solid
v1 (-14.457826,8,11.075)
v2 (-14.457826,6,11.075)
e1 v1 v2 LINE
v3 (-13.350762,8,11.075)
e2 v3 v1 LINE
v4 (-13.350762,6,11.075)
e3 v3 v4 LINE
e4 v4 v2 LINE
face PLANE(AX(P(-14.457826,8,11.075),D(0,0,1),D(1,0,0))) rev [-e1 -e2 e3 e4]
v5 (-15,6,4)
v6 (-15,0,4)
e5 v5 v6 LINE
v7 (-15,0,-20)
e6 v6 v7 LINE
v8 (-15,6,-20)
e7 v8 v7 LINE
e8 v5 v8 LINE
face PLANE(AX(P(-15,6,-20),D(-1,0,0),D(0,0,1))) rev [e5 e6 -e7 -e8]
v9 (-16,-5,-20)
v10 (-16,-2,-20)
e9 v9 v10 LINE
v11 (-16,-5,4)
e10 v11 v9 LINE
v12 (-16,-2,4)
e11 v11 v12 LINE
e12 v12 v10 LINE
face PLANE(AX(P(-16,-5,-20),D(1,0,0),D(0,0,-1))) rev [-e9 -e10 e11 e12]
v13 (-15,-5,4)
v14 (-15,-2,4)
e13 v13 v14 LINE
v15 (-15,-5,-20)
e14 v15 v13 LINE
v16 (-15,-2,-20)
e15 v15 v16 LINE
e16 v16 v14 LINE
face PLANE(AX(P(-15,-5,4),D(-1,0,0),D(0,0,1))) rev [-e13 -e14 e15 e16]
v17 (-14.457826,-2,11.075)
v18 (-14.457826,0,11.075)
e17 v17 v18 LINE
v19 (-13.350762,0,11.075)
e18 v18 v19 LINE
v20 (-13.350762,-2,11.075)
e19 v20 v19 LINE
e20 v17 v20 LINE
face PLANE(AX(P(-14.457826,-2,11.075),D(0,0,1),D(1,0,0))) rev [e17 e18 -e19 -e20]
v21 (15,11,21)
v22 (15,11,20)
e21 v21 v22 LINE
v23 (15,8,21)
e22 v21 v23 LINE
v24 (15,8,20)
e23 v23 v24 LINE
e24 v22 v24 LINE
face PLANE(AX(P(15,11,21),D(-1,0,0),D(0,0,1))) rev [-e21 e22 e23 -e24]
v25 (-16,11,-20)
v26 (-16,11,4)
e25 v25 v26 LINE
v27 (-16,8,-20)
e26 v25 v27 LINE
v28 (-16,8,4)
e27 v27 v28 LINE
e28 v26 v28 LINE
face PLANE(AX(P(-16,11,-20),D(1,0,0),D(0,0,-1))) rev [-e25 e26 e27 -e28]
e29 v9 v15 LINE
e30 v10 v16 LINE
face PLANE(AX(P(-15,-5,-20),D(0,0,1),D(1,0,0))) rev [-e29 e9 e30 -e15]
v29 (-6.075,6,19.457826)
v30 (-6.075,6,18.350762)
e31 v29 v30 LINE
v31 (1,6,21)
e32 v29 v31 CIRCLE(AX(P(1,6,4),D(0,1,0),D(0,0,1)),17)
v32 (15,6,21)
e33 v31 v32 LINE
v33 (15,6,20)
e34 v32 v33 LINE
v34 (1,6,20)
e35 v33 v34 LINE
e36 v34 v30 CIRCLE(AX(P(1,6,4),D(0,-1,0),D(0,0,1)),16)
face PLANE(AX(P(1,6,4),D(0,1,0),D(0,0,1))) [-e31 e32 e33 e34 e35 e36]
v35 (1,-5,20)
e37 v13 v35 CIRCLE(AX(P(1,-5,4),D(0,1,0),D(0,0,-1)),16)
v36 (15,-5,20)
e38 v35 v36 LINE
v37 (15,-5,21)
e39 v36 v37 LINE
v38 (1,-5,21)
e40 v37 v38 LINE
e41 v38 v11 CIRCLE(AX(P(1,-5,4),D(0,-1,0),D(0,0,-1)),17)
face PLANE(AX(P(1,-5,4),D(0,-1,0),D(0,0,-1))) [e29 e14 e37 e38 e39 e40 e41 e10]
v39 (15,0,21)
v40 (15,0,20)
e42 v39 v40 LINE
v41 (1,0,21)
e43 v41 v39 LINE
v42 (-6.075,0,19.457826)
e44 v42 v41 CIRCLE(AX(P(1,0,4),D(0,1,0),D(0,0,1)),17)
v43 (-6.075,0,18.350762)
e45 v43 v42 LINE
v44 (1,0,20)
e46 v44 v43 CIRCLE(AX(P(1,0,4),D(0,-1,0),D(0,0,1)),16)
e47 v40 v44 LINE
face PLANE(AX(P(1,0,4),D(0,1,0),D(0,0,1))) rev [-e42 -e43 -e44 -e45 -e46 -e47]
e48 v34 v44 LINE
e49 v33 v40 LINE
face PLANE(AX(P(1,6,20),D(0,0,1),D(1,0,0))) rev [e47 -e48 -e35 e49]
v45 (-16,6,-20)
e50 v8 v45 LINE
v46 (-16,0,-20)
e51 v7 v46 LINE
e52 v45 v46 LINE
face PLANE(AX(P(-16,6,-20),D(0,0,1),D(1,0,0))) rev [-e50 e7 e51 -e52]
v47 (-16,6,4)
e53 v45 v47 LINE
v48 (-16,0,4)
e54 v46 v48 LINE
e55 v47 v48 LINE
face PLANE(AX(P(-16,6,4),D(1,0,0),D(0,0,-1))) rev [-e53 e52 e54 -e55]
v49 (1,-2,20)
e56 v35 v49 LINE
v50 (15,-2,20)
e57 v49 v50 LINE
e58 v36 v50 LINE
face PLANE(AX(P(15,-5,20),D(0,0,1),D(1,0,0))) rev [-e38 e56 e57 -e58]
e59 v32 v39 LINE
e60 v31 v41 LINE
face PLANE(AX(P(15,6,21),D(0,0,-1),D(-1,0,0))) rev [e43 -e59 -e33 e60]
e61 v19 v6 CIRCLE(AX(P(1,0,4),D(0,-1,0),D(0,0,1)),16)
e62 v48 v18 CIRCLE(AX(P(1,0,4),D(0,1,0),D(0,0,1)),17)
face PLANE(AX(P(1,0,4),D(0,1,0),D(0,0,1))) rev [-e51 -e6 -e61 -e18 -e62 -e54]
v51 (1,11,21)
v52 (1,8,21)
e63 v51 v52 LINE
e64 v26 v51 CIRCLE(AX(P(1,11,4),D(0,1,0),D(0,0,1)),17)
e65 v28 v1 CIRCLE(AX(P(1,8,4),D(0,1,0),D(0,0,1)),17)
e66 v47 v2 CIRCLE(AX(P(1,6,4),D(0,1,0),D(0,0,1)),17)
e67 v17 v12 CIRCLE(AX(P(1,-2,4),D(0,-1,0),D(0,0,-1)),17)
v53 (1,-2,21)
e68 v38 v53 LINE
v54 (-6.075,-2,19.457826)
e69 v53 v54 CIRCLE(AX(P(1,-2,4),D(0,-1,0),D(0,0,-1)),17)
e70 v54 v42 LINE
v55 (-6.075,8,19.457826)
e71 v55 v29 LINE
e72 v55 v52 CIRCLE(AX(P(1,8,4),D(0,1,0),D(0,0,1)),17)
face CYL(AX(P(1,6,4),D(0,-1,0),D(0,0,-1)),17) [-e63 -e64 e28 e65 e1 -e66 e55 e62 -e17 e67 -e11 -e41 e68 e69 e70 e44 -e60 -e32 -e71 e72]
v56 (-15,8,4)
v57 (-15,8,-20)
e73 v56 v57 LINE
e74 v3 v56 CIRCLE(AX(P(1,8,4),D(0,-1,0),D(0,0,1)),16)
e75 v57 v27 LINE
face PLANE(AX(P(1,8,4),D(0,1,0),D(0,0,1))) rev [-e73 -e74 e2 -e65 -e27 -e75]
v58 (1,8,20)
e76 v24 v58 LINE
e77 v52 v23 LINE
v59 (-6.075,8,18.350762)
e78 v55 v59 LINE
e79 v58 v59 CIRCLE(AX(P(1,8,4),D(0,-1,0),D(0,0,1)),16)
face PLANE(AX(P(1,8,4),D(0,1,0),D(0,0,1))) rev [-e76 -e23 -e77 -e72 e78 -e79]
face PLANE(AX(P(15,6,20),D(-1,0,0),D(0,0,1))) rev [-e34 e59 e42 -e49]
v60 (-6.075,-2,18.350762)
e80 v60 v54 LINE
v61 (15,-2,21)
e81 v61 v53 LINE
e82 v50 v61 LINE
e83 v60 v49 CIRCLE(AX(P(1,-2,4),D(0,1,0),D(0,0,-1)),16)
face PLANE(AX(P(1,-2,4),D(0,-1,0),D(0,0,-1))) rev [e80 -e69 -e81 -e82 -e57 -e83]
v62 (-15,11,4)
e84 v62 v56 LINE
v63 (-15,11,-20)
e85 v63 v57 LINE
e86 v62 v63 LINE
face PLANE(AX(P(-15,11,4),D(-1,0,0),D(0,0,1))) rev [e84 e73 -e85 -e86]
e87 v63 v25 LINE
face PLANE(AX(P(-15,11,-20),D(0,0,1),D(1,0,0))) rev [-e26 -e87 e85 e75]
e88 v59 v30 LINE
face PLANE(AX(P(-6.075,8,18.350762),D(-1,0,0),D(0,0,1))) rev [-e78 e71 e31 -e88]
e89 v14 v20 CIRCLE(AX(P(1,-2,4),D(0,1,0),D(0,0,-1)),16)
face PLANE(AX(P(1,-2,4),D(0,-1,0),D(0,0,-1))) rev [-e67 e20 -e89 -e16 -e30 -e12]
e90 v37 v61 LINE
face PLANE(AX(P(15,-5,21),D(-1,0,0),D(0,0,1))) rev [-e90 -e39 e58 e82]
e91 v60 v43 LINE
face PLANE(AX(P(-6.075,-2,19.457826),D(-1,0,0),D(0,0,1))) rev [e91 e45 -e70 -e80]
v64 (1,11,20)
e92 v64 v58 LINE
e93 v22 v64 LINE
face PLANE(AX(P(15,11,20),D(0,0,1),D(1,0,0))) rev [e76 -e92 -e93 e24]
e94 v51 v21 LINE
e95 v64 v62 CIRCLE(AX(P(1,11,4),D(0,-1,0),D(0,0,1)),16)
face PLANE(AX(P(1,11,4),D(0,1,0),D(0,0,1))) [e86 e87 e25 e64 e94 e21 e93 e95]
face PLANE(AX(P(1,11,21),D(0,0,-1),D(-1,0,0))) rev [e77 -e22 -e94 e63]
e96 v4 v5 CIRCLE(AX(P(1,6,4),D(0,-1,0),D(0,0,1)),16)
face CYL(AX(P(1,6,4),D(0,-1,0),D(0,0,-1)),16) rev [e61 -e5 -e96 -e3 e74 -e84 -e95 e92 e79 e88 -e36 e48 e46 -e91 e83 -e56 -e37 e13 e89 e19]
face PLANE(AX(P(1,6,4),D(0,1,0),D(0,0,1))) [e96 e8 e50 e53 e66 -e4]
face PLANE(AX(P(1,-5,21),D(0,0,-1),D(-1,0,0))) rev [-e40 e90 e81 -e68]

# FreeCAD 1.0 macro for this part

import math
import FreeCAD as App
import Part
import Sketcher

V = App.Vector

doc = App.newDocument("Part")
params = doc.addObject("Spreadsheet::Sheet", "Params")
for row, (alias, value) in enumerate([
    ("sketch1_radius", "17 mm"),
    ("sketch1_radius2", "16 mm"),
    ("sketch1_width", "14 mm"),
    ("sketch1_height", "24 mm"),
    ("pad1_length", "6 mm"),
    ("sketch2_radius", "16 mm"),
    ("sketch2_radius2", "17 mm"),
    ("pad2_length", "2 mm"),
    ("sketch3_radius", "16 mm"),
    ("sketch3_radius2", "17 mm"),
    ("pad3_length", "2 mm"),
    ("sketch4_radius", "16 mm"),
    ("sketch4_radius2", "17 mm"),
    ("sketch4_width", "14 mm"),
    ("sketch4_height", "24 mm"),
    ("pad4_length", "3 mm"),
    ("sketch5_radius", "16 mm"),
    ("sketch5_radius2", "17 mm"),
    ("sketch5_width", "14 mm"),
    ("sketch5_height", "24 mm"),
    ("pad5_length", "3 mm"),
], start=1):
    params.set(f"A{row}", alias)
    params.set(f"B{row}", "=" + value)
    params.setAlias(f"B{row}", alias)

body = doc.addObject("PartDesign::Body", "Body")

# Sketch on XZ plane
sketch1 = body.newObject("Sketcher::SketchObject", "Sketch")
sketch1.AttachmentSupport = (doc.getObject("XZ_Plane"), [""])
sketch1.MapMode = "FlatFace"
sketch1.addGeometry([
    Part.LineSegment(V(-15, 4, 0), V(-15, -20, 0)),  # 0
    Part.LineSegment(V(-15, -20, 0), V(-16, -20, 0)),  # 1
    Part.LineSegment(V(-16, -20, 0), V(-16, 4, 0)),  # 2
    Part.ArcOfCircle(Part.Circle(V(1, 4, 0), V(0, 0, 1), 17), math.radians(90), math.radians(180)),  # 3
    Part.LineSegment(V(1, 21, 0), V(15, 21, 0)),  # 4
    Part.LineSegment(V(15, 21, 0), V(15, 20, 0)),  # 5
    Part.LineSegment(V(15, 20, 0), V(1, 20, 0)),  # 6
    Part.ArcOfCircle(Part.Circle(V(1, 4, 0), V(0, 0, 1), 16), math.radians(90), math.radians(180)),  # 7
], False)
sketch1.addConstraint([
    Sketcher.Constraint("Coincident", 0, 2, 1, 1),
    Sketcher.Constraint("Coincident", 1, 2, 2, 1),
    Sketcher.Constraint("Tangent", 2, 2, 3, 2),
    Sketcher.Constraint("Tangent", 3, 1, 4, 1),
    Sketcher.Constraint("Coincident", 4, 2, 5, 1),
    Sketcher.Constraint("Coincident", 5, 2, 6, 1),
    Sketcher.Constraint("Tangent", 6, 2, 7, 1),
    Sketcher.Constraint("Tangent", 7, 2, 0, 1),
    Sketcher.Constraint("Vertical", 0),
    Sketcher.Constraint("Horizontal", 1),
    Sketcher.Constraint("Vertical", 2),
    Sketcher.Constraint("Horizontal", 4),
    Sketcher.Constraint("Vertical", 5),
    Sketcher.Constraint("Horizontal", 6),
    Sketcher.Constraint("Coincident", 7, 3, 3, 3),
    Sketcher.Constraint("Symmetric", 0, 2, 5, 2, -1, 1),
    Sketcher.Constraint("Radius", 3, 17.0),
    Sketcher.Constraint("Radius", 7, 16.0),
    Sketcher.Constraint("DistanceX", 4, 1, 4, 2, 14.0),
    Sketcher.Constraint("DistanceY", 0, 2, 0, 1, 24.0),
])
sketch1.setExpression("Constraints[16]", "Params.sketch1_radius")
sketch1.setExpression("Constraints[17]", "Params.sketch1_radius2")
sketch1.setExpression("Constraints[18]", "Params.sketch1_width")
sketch1.setExpression("Constraints[19]", "Params.sketch1_height")
pad1 = body.newObject("PartDesign::Pad", "Pad")
pad1.Profile = sketch1
pad1.setExpression("Length", "Params.pad1_length")
pad1.Reversed = True

# Sketch on XZ plane
sketch2 = body.newObject("Sketcher::SketchObject", "Sketch001")
sketch2.AttachmentSupport = (doc.getObject("XZ_Plane"), [""])
sketch2.MapMode = "FlatFace"
sketch2.AttachmentOffset = App.Placement(V(0, 0, -6), App.Rotation())
sketch2.addGeometry([
    Part.LineSegment(V(-6.1, 19.5, 0), V(-6.1, 18.4, 0)),
    Part.ArcOfCircle(Part.Circle(V(1, 4, 0), V(0, 0, 1), 16), math.radians(116), math.radians(154)),
    Part.LineSegment(V(-13.4, 11.1, 0), V(-14.5, 11.1, 0)),
    Part.ArcOfCircle(Part.Circle(V(1, 4, 0), V(0, 0, 1), 17), math.radians(115), math.radians(155)),
], False)
sketch2.addConstraint([
    Sketcher.Constraint("Coincident", 0, 2, 1, 1),
    Sketcher.Constraint("Coincident", 1, 2, 2, 1),
    Sketcher.Constraint("Coincident", 2, 2, 3, 2),
    Sketcher.Constraint("Coincident", 3, 1, 0, 1),
    Sketcher.Constraint("Vertical", 0),
    Sketcher.Constraint("Horizontal", 2),
    Sketcher.Constraint("Coincident", 3, 3, 1, 3),
    Sketcher.Constraint("Equal", 2, 0),
    Sketcher.Constraint("Radius", 1, 16.0),
    Sketcher.Constraint("Radius", 3, 17.0),
    Sketcher.Constraint("DistanceX", -1, 1, 1, 3, 1.0),
    Sketcher.Constraint("DistanceY", -1, 1, 1, 3, 4.0),
    Sketcher.Constraint("DistanceX", 0, 2, -1, 1, 6.075),
])
sketch2.setExpression("Constraints[8]", "Params.sketch2_radius")
sketch2.setExpression("Constraints[9]", "Params.sketch2_radius2")
pad2 = body.newObject("PartDesign::Pad", "Pad001")
pad2.Profile = sketch2
pad2.setExpression("Length", "Params.pad2_length")
pad2.Reversed = True

# Sketch on XZ plane
sketch3 = body.newObject("Sketcher::SketchObject", "Sketch002")
sketch3.AttachmentSupport = (doc.getObject("XZ_Plane"), [""])
sketch3.MapMode = "FlatFace"
sketch3.AttachmentOffset = App.Placement(V(0, 0, 2), App.Rotation())
sketch3.addGeometry([
    Part.LineSegment(V(-14.5, 11.1, 0), V(-13.4, 11.1, 0)),
    Part.ArcOfCircle(Part.Circle(V(1, 4, 0), V(0, 0, 1), 16), math.radians(116), math.radians(154)),
    Part.LineSegment(V(-6.1, 18.4, 0), V(-6.1, 19.5, 0)),
    Part.ArcOfCircle(Part.Circle(V(1, 4, 0), V(0, 0, 1), 17), math.radians(115), math.radians(155)),
], False)
sketch3.addConstraint([
    Sketcher.Constraint("Coincident", 0, 2, 1, 2),
    Sketcher.Constraint("Coincident", 1, 1, 2, 1),
    Sketcher.Constraint("Coincident", 2, 2, 3, 1),
    Sketcher.Constraint("Coincident", 3, 2, 0, 1),
    Sketcher.Constraint("Horizontal", 0),
    Sketcher.Constraint("Vertical", 2),
    Sketcher.Constraint("Coincident", 3, 3, 1, 3),
    Sketcher.Constraint("Equal", 0, 2),
    Sketcher.Constraint("Radius", 1, 16.0),
    Sketcher.Constraint("Radius", 3, 17.0),
    Sketcher.Constraint("DistanceX", -1, 1, 1, 3, 1.0),
    Sketcher.Constraint("DistanceY", -1, 1, 1, 3, 4.0),
    Sketcher.Constraint("DistanceY", -1, 1, 0, 2, 11.075),
])
sketch3.setExpression("Constraints[8]", "Params.sketch3_radius")
sketch3.setExpression("Constraints[9]", "Params.sketch3_radius2")
pad3 = body.newObject("PartDesign::Pad", "Pad002")
pad3.Profile = sketch3
pad3.setExpression("Length", "Params.pad3_length")
pad3.Reversed = True

# Sketch on XZ plane
sketch4 = body.newObject("Sketcher::SketchObject", "Sketch003")
sketch4.AttachmentSupport = (doc.getObject("XZ_Plane"), [""])
sketch4.MapMode = "FlatFace"
sketch4.AttachmentOffset = App.Placement(V(0, 0, -8), App.Rotation())
sketch4.addGeometry([
    Part.LineSegment(V(15, 21, 0), V(15, 20, 0)),  # 0
    Part.LineSegment(V(15, 20, 0), V(1, 20, 0)),  # 1
    Part.ArcOfCircle(Part.Circle(V(1, 4, 0), V(0, 0, 1), 16), math.radians(90), math.radians(116)),  # 2
    Part.ArcOfCircle(Part.Circle(V(1, 4, 0), V(0, 0, 1), 16), math.radians(116), math.radians(154)),  # 3
    Part.ArcOfCircle(Part.Circle(V(1, 4, 0), V(0, 0, 1), 16), math.radians(154), math.radians(180)),  # 4
    Part.LineSegment(V(-15, 4, 0), V(-15, -20, 0)),  # 5
    Part.LineSegment(V(-15, -20, 0), V(-16, -20, 0)),  # 6
    Part.LineSegment(V(-16, -20, 0), V(-16, 4, 0)),  # 7
    Part.ArcOfCircle(Part.Circle(V(1, 4, 0), V(0, 0, 1), 17), math.radians(155), math.radians(180)),  # 8
    Part.ArcOfCircle(Part.Circle(V(1, 4, 0), V(0, 0, 1), 17), math.radians(115), math.radians(155)),  # 9
    Part.ArcOfCircle(Part.Circle(V(1, 4, 0), V(0, 0, 1), 17), math.radians(90), math.radians(115)),  # 10
    Part.LineSegment(V(1, 21, 0), V(15, 21, 0)),  # 11
], False)
sketch4.addConstraint([
    Sketcher.Constraint("Coincident", 0, 2, 1, 1),
    Sketcher.Constraint("Tangent", 1, 2, 2, 1),
    Sketcher.Constraint("Tangent", 2, 2, 3, 1),
    Sketcher.Constraint("Tangent", 3, 2, 4, 1),
    Sketcher.Constraint("Tangent", 4, 2, 5, 1),
    Sketcher.Constraint("Coincident", 5, 2, 6, 1),
    Sketcher.Constraint("Coincident", 6, 2, 7, 1),
    Sketcher.Constraint("Tangent", 7, 2, 8, 2),
    Sketcher.Constraint("Tangent", 8, 1, 9, 2),
    Sketcher.Constraint("Tangent", 9, 1, 10, 2),
    Sketcher.Constraint("Tangent", 10, 1, 11, 1),
    Sketcher.Constraint("Coincident", 11, 2, 0, 1),
    Sketcher.Constraint("Vertical", 0),
    Sketcher.Constraint("Horizontal", 1),
    Sketcher.Constraint("Vertical", 5),
    Sketcher.Constraint("Horizontal", 6),
    Sketcher.Constraint("Vertical", 7),
    Sketcher.Constraint("Horizontal", 11),
    Sketcher.Constraint("Coincident", 4, 3, 2, 3),
    Sketcher.Constraint("Coincident", 8, 3, 2, 3),
    Sketcher.Constraint("Coincident", 10, 3, 2, 3),
    Sketcher.Constraint("Symmetric", 0, 2, 5, 2, -1, 1),
    Sketcher.Constraint("Horizontal", 3, 2, 8, 1),
    Sketcher.Constraint("Vertical", 2, 2, 9, 1),
    Sketcher.Constraint("Radius", 2, 16.0),
    Sketcher.Constraint("Radius", 8, 17.0),
    Sketcher.Constraint("DistanceX", 1, 2, 1, 1, 14.0),
    Sketcher.Constraint("DistanceY", 5, 2, 5, 1, 24.0),
    Sketcher.Constraint("DistanceX", 2, 2, -1, 1, 6.075),
    Sketcher.Constraint("DistanceY", -1, 1, 3, 2, 11.075),
])
sketch4.setExpression("Constraints[24]", "Params.sketch4_radius")
sketch4.setExpression("Constraints[25]", "Params.sketch4_radius2")
sketch4.setExpression("Constraints[26]", "Params.sketch4_width")
sketch4.setExpression("Constraints[27]", "Params.sketch4_height")
pad4 = body.newObject("PartDesign::Pad", "Pad003")
pad4.Profile = sketch4
pad4.setExpression("Length", "Params.pad4_length")
pad4.Reversed = True

# Sketch on XZ plane
sketch5 = body.newObject("Sketcher::SketchObject", "Sketch004")
sketch5.AttachmentSupport = (doc.getObject("XZ_Plane"), [""])
sketch5.MapMode = "FlatFace"
sketch5.AttachmentOffset = App.Placement(V(0, 0, 5), App.Rotation())
sketch5.addGeometry([
    Part.LineSegment(V(-16, 4, 0), V(-16, -20, 0)),  # 0
    Part.LineSegment(V(-16, -20, 0), V(-15, -20, 0)),  # 1
    Part.LineSegment(V(-15, -20, 0), V(-15, 4, 0)),  # 2
    Part.ArcOfCircle(Part.Circle(V(1, 4, 0), V(0, 0, 1), 16), math.radians(154), math.radians(180)),  # 3
    Part.ArcOfCircle(Part.Circle(V(1, 4, 0), V(0, 0, 1), 16), math.radians(116), math.radians(154)),  # 4
    Part.ArcOfCircle(Part.Circle(V(1, 4, 0), V(0, 0, 1), 16), math.radians(90), math.radians(116)),  # 5
    Part.LineSegment(V(1, 20, 0), V(15, 20, 0)),  # 6
    Part.LineSegment(V(15, 20, 0), V(15, 21, 0)),  # 7
    Part.LineSegment(V(15, 21, 0), V(1, 21, 0)),  # 8
    Part.ArcOfCircle(Part.Circle(V(1, 4, 0), V(0, 0, 1), 17), math.radians(90), math.radians(115)),  # 9
    Part.ArcOfCircle(Part.Circle(V(1, 4, 0), V(0, 0, 1), 17), math.radians(115), math.radians(155)),  # 10
    Part.ArcOfCircle(Part.Circle(V(1, 4, 0), V(0, 0, 1), 17), math.radians(155), math.radians(180)),  # 11
], False)
sketch5.addConstraint([
    Sketcher.Constraint("Coincident", 0, 2, 1, 1),
    Sketcher.Constraint("Coincident", 1, 2, 2, 1),
    Sketcher.Constraint("Tangent", 2, 2, 3, 2),
    Sketcher.Constraint("Tangent", 3, 1, 4, 2),
    Sketcher.Constraint("Tangent", 4, 1, 5, 2),
    Sketcher.Constraint("Tangent", 5, 1, 6, 1),
    Sketcher.Constraint("Coincident", 6, 2, 7, 1),
    Sketcher.Constraint("Coincident", 7, 2, 8, 1),
    Sketcher.Constraint("Tangent", 8, 2, 9, 1),
    Sketcher.Constraint("Tangent", 9, 2, 10, 1),
    Sketcher.Constraint("Tangent", 10, 2, 11, 1),
    Sketcher.Constraint("Tangent", 11, 2, 0, 1),
    Sketcher.Constraint("Vertical", 0),
    Sketcher.Constraint("Horizontal", 1),
    Sketcher.Constraint("Vertical", 2),
    Sketcher.Constraint("Horizontal", 6),
    Sketcher.Constraint("Vertical", 7),
    Sketcher.Constraint("Horizontal", 8),
    Sketcher.Constraint("Coincident", 5, 3, 3, 3),
    Sketcher.Constraint("Coincident", 9, 3, 3, 3),
    Sketcher.Constraint("Coincident", 11, 3, 3, 3),
    Sketcher.Constraint("Symmetric", 1, 2, 6, 2, -1, 1),
    Sketcher.Constraint("Horizontal", 3, 1, 10, 2),
    Sketcher.Constraint("Vertical", 4, 1, 9, 2),
    Sketcher.Constraint("Radius", 3, 16.0),
    Sketcher.Constraint("Radius", 9, 17.0),
    Sketcher.Constraint("DistanceX", 6, 1, 6, 2, 14.0),
    Sketcher.Constraint("DistanceY", 0, 2, 0, 1, 24.0),
    Sketcher.Constraint("DistanceY", -1, 1, 3, 1, 11.075),
    Sketcher.Constraint("DistanceX", 4, 1, -1, 1, 6.075),
])
sketch5.setExpression("Constraints[24]", "Params.sketch5_radius")
sketch5.setExpression("Constraints[25]", "Params.sketch5_radius2")
sketch5.setExpression("Constraints[26]", "Params.sketch5_width")
sketch5.setExpression("Constraints[27]", "Params.sketch5_height")
pad5 = body.newObject("PartDesign::Pad", "Pad004")
pad5.Profile = sketch5
pad5.setExpression("Length", "Params.pad5_length")
pad5.Reversed = True

doc.recompute()
